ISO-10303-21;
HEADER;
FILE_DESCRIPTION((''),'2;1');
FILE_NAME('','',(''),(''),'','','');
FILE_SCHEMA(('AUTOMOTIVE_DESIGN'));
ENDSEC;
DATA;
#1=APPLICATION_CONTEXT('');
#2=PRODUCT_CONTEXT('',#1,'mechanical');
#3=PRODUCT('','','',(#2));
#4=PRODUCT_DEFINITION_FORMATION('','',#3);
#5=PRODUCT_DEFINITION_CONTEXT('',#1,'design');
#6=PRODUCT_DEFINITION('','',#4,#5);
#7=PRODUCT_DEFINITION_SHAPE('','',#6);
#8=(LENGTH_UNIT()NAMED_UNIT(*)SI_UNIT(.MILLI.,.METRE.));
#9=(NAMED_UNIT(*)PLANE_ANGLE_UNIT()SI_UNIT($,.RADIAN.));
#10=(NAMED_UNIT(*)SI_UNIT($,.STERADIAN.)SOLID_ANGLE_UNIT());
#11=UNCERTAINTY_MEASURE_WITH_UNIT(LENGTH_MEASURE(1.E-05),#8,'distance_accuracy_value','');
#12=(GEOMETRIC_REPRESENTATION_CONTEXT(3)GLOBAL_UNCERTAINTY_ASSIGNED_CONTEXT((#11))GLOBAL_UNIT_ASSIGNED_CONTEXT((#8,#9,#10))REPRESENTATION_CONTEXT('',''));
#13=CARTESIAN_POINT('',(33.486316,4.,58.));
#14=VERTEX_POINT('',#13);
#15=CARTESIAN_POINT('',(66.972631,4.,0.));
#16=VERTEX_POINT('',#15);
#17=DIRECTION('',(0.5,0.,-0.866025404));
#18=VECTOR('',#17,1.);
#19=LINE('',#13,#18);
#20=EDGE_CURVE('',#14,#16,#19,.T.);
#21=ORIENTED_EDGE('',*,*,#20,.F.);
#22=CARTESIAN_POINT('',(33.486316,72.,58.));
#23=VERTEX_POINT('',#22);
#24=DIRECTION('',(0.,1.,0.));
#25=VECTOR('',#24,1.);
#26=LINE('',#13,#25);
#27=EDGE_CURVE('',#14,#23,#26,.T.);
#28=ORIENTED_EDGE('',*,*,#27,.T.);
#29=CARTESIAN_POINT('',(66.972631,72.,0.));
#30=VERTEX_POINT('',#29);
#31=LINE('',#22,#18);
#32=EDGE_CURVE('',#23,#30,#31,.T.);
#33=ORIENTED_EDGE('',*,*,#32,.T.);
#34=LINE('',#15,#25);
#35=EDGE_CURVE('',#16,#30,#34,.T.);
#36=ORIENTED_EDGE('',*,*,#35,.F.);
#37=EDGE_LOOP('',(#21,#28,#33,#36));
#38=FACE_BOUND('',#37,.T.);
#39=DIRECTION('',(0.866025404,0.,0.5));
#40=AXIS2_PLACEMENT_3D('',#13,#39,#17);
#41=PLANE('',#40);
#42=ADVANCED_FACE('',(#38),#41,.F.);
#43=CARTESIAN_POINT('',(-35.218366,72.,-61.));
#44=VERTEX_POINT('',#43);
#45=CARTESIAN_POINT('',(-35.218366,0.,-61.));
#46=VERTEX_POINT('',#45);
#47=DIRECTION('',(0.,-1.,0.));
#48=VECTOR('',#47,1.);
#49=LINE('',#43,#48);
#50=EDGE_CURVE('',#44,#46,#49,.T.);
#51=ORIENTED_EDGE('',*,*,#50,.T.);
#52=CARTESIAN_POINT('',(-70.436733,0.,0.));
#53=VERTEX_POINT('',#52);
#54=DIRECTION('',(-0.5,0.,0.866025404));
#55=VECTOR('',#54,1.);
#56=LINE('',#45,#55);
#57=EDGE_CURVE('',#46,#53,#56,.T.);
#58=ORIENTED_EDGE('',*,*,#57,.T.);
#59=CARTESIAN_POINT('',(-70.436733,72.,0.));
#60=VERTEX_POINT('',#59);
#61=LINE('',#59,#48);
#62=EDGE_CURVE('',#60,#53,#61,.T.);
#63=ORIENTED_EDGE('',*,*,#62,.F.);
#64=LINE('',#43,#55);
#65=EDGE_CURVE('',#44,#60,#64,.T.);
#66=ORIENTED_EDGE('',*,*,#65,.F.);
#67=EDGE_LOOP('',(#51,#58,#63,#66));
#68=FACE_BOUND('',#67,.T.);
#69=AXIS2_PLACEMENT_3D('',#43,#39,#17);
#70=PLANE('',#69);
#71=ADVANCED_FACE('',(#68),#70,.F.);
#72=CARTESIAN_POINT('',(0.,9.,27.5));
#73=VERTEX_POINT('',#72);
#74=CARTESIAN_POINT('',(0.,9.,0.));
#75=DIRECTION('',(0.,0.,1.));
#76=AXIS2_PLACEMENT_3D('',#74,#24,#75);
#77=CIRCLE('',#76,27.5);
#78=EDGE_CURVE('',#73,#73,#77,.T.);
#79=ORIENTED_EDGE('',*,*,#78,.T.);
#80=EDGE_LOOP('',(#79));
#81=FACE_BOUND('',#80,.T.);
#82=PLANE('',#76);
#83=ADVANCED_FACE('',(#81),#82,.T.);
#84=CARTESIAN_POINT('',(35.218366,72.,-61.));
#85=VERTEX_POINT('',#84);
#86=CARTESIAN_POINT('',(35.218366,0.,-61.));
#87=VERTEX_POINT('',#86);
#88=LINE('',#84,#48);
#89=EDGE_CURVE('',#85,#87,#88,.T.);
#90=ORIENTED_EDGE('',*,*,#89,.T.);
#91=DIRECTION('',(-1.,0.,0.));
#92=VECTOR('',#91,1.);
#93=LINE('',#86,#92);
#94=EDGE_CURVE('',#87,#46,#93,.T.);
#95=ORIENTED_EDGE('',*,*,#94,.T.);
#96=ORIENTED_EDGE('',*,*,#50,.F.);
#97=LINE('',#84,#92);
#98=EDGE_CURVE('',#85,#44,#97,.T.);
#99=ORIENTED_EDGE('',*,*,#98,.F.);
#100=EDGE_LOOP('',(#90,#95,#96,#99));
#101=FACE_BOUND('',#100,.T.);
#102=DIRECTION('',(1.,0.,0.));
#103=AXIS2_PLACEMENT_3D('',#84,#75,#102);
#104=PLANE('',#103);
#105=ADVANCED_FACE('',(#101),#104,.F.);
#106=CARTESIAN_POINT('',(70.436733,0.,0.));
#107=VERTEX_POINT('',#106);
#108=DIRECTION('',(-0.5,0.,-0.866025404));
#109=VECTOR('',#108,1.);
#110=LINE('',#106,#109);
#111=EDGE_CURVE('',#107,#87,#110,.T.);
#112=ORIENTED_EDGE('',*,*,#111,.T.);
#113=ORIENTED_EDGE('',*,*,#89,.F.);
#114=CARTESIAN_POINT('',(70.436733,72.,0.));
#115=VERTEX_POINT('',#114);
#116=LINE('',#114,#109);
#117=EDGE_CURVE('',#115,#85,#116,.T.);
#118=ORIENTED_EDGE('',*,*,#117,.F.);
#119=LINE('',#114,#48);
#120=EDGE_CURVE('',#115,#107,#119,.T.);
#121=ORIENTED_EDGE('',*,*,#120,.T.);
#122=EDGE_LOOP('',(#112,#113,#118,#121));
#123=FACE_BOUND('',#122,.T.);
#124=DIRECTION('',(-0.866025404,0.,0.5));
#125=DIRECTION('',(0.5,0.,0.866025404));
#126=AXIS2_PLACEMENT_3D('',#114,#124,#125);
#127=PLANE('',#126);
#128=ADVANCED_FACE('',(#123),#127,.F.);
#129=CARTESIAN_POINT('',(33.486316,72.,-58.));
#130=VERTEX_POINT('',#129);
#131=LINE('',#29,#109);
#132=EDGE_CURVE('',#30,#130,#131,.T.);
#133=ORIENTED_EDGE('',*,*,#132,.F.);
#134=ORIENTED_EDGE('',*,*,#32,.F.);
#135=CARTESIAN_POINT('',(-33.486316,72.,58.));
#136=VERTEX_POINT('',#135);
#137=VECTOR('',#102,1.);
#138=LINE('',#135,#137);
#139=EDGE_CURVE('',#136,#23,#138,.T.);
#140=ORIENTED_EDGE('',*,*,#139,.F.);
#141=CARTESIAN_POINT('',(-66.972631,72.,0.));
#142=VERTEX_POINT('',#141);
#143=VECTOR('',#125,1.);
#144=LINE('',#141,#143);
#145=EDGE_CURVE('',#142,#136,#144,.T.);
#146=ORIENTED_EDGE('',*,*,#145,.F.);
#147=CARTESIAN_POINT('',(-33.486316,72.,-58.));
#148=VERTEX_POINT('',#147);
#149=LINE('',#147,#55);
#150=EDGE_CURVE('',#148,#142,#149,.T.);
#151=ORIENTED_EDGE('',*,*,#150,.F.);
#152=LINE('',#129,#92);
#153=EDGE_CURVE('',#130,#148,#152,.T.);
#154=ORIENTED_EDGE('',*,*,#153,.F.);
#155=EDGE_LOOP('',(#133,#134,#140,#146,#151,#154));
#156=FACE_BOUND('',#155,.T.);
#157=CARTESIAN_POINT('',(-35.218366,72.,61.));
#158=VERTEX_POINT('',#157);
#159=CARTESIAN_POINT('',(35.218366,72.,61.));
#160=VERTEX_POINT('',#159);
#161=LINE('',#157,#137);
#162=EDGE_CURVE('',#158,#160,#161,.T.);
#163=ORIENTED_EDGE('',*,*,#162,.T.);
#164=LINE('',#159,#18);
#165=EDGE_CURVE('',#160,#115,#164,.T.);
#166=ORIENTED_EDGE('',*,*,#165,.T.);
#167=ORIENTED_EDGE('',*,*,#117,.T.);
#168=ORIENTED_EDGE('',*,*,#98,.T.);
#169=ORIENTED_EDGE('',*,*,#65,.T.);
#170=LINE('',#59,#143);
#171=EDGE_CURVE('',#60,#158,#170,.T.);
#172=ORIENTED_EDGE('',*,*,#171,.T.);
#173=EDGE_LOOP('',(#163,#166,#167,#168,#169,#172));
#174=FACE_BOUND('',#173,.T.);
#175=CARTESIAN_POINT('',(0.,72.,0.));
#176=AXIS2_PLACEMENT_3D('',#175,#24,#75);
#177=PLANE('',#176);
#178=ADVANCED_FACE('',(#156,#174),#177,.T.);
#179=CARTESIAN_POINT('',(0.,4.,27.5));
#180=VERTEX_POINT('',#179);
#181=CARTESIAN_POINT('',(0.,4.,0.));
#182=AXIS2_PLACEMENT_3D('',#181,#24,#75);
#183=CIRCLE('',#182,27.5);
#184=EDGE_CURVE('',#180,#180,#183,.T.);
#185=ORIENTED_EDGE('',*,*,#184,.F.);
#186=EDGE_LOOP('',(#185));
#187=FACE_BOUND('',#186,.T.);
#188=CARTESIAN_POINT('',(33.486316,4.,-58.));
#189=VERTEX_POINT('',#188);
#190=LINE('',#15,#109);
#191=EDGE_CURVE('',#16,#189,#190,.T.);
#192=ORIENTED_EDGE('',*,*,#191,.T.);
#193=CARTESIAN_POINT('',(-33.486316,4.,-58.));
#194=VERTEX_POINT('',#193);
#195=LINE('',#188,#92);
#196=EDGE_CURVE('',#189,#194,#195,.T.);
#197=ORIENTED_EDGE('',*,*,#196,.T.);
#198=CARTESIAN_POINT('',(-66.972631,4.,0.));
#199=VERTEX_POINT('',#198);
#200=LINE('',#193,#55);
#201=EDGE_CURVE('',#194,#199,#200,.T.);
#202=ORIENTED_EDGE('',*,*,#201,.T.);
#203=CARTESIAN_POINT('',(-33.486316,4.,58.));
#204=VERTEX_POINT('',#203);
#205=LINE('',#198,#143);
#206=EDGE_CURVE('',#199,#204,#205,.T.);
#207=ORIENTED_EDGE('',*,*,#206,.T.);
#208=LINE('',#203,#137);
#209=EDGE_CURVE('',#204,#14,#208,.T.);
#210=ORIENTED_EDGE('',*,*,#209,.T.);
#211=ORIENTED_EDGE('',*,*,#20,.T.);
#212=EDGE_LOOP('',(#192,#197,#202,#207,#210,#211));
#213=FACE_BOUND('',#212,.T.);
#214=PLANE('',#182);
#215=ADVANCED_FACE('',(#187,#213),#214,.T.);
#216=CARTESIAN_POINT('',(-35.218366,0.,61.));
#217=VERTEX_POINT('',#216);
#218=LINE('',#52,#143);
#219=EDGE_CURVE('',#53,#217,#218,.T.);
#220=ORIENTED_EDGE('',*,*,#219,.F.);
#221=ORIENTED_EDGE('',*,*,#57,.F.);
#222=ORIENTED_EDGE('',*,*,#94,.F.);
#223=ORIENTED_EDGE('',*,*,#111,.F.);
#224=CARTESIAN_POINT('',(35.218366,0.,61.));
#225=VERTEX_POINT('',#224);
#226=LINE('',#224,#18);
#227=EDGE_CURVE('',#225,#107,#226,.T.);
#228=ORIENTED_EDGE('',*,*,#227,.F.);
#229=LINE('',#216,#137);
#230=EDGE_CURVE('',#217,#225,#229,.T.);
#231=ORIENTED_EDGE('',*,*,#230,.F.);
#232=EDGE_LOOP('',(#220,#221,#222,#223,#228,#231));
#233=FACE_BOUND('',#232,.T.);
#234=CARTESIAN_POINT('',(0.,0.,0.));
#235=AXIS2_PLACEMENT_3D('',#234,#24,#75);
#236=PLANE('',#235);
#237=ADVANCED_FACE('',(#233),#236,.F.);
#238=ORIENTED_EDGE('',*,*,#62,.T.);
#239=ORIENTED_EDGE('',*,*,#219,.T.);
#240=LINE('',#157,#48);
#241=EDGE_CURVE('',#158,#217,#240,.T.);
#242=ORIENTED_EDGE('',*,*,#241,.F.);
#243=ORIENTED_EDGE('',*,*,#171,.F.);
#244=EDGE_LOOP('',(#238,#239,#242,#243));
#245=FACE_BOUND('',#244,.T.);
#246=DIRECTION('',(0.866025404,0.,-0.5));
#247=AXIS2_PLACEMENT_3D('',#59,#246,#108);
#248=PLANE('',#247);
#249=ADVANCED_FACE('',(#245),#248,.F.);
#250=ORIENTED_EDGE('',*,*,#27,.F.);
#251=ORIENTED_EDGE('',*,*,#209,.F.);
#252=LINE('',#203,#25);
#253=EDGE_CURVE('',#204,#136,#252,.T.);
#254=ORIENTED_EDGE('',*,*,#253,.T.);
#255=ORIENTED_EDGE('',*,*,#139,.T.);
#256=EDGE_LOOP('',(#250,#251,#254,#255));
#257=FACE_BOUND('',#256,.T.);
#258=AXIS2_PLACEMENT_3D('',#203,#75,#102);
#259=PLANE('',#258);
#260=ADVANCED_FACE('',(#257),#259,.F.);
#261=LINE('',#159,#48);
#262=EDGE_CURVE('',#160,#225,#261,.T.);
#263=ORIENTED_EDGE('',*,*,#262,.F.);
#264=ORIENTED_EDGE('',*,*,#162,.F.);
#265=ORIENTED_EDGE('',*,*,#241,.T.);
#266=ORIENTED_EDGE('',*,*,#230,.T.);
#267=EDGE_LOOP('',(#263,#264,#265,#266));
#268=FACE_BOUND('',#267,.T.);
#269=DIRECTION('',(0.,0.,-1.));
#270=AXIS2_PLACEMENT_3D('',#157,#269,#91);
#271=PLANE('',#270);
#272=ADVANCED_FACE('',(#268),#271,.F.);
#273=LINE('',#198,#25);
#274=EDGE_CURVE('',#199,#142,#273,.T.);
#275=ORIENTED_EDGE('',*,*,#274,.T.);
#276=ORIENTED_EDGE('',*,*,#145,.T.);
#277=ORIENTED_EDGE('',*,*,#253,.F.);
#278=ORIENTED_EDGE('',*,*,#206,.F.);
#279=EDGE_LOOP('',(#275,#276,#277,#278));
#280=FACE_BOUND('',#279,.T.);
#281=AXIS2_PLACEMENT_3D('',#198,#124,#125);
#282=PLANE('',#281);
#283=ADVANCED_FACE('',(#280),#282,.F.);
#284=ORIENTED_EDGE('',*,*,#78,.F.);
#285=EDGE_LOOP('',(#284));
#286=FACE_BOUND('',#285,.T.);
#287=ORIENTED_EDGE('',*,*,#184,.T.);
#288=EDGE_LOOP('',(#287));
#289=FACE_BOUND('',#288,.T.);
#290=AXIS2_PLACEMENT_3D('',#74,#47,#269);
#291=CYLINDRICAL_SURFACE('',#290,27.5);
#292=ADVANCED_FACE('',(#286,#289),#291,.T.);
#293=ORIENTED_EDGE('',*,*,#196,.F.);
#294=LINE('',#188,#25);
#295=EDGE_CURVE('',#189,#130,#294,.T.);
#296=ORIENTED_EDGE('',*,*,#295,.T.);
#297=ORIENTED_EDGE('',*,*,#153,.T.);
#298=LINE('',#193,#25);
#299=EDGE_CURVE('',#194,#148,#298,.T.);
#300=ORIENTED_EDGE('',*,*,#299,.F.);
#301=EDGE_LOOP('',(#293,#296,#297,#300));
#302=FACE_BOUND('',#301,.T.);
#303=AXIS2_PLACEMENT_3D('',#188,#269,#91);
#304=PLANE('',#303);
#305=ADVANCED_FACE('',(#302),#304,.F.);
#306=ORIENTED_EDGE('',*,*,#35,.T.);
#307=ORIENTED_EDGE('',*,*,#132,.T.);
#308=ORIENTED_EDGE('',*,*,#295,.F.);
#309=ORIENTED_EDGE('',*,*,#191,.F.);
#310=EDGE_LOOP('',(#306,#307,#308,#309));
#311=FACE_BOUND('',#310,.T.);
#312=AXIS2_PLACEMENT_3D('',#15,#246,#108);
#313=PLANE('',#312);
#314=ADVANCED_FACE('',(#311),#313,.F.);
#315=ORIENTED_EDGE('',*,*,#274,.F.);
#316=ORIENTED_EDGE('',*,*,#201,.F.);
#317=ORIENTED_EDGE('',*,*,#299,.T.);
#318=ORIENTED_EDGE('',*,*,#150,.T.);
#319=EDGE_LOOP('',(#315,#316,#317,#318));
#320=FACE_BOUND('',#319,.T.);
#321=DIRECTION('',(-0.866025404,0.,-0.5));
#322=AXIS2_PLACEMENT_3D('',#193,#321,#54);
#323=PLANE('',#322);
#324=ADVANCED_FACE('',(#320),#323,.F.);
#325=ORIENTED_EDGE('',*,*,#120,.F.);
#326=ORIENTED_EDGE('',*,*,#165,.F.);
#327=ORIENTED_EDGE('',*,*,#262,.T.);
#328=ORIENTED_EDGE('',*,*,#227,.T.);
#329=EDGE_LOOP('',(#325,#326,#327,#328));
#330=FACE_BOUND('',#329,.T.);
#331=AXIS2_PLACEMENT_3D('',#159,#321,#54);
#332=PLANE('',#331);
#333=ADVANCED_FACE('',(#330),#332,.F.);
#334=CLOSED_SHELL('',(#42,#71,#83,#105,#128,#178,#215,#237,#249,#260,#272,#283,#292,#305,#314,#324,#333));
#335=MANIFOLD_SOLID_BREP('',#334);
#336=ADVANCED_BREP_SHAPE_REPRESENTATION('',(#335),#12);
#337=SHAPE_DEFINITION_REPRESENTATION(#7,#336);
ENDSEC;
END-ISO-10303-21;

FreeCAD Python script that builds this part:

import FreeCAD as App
import Part
import Sketcher
from FreeCAD import Vector
Q = App.Units.Quantity

doc = App.newDocument("Part")
body = doc.addObject("PartDesign::Body", "Body")

# Sketch on XZ plane
sketch1 = body.newObject("Sketcher::SketchObject", "Sketch")
sketch1.AttachmentSupport = (doc.getObject("XZ_Plane"), [""])
sketch1.MapMode = "FlatFace"
sketch1.addGeometry(Part.LineSegment(Vector(70, 0, 0), Vector(35, -61, 0)), False)
sketch1.addGeometry(Part.LineSegment(Vector(35, -61, 0), Vector(-35, -61, 0)), False)
sketch1.addGeometry(Part.LineSegment(Vector(-35, -61, 0), Vector(-70, 0, 0)), False)
sketch1.addGeometry(Part.LineSegment(Vector(-70, 0, 0), Vector(-35, 61, 0)), False)
sketch1.addGeometry(Part.LineSegment(Vector(-35, 61, 0), Vector(35, 61, 0)), False)
sketch1.addGeometry(Part.LineSegment(Vector(35, 61, 0), Vector(70, 0, 0)), False)
sketch1.addConstraint(Sketcher.Constraint("Coincident", 0, 2, 1, 1))
sketch1.addConstraint(Sketcher.Constraint("Coincident", 1, 2, 2, 1))
sketch1.addConstraint(Sketcher.Constraint("Coincident", 2, 2, 3, 1))
sketch1.addConstraint(Sketcher.Constraint("Coincident", 3, 2, 4, 1))
sketch1.addConstraint(Sketcher.Constraint("Coincident", 4, 2, 5, 1))
sketch1.addConstraint(Sketcher.Constraint("Coincident", 5, 2, 0, 1))
sketch1.addConstraint(Sketcher.Constraint("Horizontal", 1))
sketch1.addConstraint(Sketcher.Constraint("Horizontal", 4))
sketch1.addConstraint(Sketcher.Constraint("Symmetric", 0, 2, 3, 2, -1, 1))
sketch1.addConstraint(Sketcher.Constraint("Symmetric", 2, 2, 5, 2, -1, 1))
sketch1.addConstraint(Sketcher.Constraint("PointOnObject", 2, 2, -1))
sketch1.addConstraint(Sketcher.Constraint("Parallel", 2, 5))
sketch1.addConstraint(Sketcher.Constraint("Vertical", 1, 2, 3, 2))
sketch1.addConstraint(Sketcher.Constraint("Angle", 0, Q("-120 deg")))
sketch1.addConstraint(Sketcher.Constraint("DistanceY", 0, 2, -1, 1, 61.0))
sketch1.addConstraint(Sketcher.Constraint("DistanceX", 2, 2, 0, 2, 105.655099))
pad1 = body.newObject("PartDesign::Pad", "Pad")
pad1.Profile = sketch1
pad1.Length = 72
pad1.Reversed = True

# Sketch on XZ plane
sketch2 = body.newObject("Sketcher::SketchObject", "Sketch001")
sketch2.AttachmentSupport = (doc.getObject("XZ_Plane"), [""])
sketch2.MapMode = "FlatFace"
sketch2.AttachmentOffset = App.Placement(Vector(0, 0, -72), App.Rotation())
sketch2.addGeometry(Part.LineSegment(Vector(67, 0, 0), Vector(33, -58, 0)), False)
sketch2.addGeometry(Part.LineSegment(Vector(33, -58, 0), Vector(-33, -58, 0)), False)
sketch2.addGeometry(Part.LineSegment(Vector(-33, -58, 0), Vector(-67, 0, 0)), False)
sketch2.addGeometry(Part.LineSegment(Vector(-67, 0, 0), Vector(-33, 58, 0)), False)
sketch2.addGeometry(Part.LineSegment(Vector(-33, 58, 0), Vector(33, 58, 0)), False)
sketch2.addGeometry(Part.LineSegment(Vector(33, 58, 0), Vector(67, 0, 0)), False)
sketch2.addConstraint(Sketcher.Constraint("Coincident", 0, 2, 1, 1))
sketch2.addConstraint(Sketcher.Constraint("Coincident", 1, 2, 2, 1))
sketch2.addConstraint(Sketcher.Constraint("Coincident", 2, 2, 3, 1))
sketch2.addConstraint(Sketcher.Constraint("Coincident", 3, 2, 4, 1))
sketch2.addConstraint(Sketcher.Constraint("Coincident", 4, 2, 5, 1))
sketch2.addConstraint(Sketcher.Constraint("Coincident", 5, 2, 0, 1))
sketch2.addConstraint(Sketcher.Constraint("Horizontal", 1))
sketch2.addConstraint(Sketcher.Constraint("Horizontal", 4))
sketch2.addConstraint(Sketcher.Constraint("Symmetric", 0, 2, 3, 2, -1, 1))
sketch2.addConstraint(Sketcher.Constraint("Symmetric", 2, 2, 5, 2, -1, 1))
sketch2.addConstraint(Sketcher.Constraint("PointOnObject", 2, 2, -1))
sketch2.addConstraint(Sketcher.Constraint("Parallel", 2, 5))
sketch2.addConstraint(Sketcher.Constraint("Vertical", 1, 2, 3, 2))
sketch2.addConstraint(Sketcher.Constraint("Angle", 0, Q("-120 deg")))
sketch2.addConstraint(Sketcher.Constraint("DistanceY", 0, 2, -1, 1, 58.0))
sketch2.addConstraint(Sketcher.Constraint("DistanceX", 1, 2, 1, 1, 66.972631))
pocket1 = body.newObject("PartDesign::Pocket", "Pocket")
pocket1.Profile = sketch2
pocket1.Length = 68
pocket1.Reversed = True

# Sketch on XZ plane
sketch3 = body.newObject("Sketcher::SketchObject", "Sketch002")
sketch3.AttachmentSupport = (doc.getObject("XZ_Plane"), [""])
sketch3.MapMode = "FlatFace"
sketch3.AttachmentOffset = App.Placement(Vector(0, 0, -4), App.Rotation())
sketch3.addGeometry(Part.Circle(Vector(0, 0, 0), Vector(0, 0, 1), 28), False)
sketch3.addConstraint(Sketcher.Constraint("Coincident", 0, 3, -1, 1))
sketch3.addConstraint(Sketcher.Constraint("Diameter", 0, 55.0))
pad2 = body.newObject("PartDesign::Pad", "Pad001")
pad2.Profile = sketch3
pad2.Length = 5
pad2.Reversed = True

doc.recompute()
